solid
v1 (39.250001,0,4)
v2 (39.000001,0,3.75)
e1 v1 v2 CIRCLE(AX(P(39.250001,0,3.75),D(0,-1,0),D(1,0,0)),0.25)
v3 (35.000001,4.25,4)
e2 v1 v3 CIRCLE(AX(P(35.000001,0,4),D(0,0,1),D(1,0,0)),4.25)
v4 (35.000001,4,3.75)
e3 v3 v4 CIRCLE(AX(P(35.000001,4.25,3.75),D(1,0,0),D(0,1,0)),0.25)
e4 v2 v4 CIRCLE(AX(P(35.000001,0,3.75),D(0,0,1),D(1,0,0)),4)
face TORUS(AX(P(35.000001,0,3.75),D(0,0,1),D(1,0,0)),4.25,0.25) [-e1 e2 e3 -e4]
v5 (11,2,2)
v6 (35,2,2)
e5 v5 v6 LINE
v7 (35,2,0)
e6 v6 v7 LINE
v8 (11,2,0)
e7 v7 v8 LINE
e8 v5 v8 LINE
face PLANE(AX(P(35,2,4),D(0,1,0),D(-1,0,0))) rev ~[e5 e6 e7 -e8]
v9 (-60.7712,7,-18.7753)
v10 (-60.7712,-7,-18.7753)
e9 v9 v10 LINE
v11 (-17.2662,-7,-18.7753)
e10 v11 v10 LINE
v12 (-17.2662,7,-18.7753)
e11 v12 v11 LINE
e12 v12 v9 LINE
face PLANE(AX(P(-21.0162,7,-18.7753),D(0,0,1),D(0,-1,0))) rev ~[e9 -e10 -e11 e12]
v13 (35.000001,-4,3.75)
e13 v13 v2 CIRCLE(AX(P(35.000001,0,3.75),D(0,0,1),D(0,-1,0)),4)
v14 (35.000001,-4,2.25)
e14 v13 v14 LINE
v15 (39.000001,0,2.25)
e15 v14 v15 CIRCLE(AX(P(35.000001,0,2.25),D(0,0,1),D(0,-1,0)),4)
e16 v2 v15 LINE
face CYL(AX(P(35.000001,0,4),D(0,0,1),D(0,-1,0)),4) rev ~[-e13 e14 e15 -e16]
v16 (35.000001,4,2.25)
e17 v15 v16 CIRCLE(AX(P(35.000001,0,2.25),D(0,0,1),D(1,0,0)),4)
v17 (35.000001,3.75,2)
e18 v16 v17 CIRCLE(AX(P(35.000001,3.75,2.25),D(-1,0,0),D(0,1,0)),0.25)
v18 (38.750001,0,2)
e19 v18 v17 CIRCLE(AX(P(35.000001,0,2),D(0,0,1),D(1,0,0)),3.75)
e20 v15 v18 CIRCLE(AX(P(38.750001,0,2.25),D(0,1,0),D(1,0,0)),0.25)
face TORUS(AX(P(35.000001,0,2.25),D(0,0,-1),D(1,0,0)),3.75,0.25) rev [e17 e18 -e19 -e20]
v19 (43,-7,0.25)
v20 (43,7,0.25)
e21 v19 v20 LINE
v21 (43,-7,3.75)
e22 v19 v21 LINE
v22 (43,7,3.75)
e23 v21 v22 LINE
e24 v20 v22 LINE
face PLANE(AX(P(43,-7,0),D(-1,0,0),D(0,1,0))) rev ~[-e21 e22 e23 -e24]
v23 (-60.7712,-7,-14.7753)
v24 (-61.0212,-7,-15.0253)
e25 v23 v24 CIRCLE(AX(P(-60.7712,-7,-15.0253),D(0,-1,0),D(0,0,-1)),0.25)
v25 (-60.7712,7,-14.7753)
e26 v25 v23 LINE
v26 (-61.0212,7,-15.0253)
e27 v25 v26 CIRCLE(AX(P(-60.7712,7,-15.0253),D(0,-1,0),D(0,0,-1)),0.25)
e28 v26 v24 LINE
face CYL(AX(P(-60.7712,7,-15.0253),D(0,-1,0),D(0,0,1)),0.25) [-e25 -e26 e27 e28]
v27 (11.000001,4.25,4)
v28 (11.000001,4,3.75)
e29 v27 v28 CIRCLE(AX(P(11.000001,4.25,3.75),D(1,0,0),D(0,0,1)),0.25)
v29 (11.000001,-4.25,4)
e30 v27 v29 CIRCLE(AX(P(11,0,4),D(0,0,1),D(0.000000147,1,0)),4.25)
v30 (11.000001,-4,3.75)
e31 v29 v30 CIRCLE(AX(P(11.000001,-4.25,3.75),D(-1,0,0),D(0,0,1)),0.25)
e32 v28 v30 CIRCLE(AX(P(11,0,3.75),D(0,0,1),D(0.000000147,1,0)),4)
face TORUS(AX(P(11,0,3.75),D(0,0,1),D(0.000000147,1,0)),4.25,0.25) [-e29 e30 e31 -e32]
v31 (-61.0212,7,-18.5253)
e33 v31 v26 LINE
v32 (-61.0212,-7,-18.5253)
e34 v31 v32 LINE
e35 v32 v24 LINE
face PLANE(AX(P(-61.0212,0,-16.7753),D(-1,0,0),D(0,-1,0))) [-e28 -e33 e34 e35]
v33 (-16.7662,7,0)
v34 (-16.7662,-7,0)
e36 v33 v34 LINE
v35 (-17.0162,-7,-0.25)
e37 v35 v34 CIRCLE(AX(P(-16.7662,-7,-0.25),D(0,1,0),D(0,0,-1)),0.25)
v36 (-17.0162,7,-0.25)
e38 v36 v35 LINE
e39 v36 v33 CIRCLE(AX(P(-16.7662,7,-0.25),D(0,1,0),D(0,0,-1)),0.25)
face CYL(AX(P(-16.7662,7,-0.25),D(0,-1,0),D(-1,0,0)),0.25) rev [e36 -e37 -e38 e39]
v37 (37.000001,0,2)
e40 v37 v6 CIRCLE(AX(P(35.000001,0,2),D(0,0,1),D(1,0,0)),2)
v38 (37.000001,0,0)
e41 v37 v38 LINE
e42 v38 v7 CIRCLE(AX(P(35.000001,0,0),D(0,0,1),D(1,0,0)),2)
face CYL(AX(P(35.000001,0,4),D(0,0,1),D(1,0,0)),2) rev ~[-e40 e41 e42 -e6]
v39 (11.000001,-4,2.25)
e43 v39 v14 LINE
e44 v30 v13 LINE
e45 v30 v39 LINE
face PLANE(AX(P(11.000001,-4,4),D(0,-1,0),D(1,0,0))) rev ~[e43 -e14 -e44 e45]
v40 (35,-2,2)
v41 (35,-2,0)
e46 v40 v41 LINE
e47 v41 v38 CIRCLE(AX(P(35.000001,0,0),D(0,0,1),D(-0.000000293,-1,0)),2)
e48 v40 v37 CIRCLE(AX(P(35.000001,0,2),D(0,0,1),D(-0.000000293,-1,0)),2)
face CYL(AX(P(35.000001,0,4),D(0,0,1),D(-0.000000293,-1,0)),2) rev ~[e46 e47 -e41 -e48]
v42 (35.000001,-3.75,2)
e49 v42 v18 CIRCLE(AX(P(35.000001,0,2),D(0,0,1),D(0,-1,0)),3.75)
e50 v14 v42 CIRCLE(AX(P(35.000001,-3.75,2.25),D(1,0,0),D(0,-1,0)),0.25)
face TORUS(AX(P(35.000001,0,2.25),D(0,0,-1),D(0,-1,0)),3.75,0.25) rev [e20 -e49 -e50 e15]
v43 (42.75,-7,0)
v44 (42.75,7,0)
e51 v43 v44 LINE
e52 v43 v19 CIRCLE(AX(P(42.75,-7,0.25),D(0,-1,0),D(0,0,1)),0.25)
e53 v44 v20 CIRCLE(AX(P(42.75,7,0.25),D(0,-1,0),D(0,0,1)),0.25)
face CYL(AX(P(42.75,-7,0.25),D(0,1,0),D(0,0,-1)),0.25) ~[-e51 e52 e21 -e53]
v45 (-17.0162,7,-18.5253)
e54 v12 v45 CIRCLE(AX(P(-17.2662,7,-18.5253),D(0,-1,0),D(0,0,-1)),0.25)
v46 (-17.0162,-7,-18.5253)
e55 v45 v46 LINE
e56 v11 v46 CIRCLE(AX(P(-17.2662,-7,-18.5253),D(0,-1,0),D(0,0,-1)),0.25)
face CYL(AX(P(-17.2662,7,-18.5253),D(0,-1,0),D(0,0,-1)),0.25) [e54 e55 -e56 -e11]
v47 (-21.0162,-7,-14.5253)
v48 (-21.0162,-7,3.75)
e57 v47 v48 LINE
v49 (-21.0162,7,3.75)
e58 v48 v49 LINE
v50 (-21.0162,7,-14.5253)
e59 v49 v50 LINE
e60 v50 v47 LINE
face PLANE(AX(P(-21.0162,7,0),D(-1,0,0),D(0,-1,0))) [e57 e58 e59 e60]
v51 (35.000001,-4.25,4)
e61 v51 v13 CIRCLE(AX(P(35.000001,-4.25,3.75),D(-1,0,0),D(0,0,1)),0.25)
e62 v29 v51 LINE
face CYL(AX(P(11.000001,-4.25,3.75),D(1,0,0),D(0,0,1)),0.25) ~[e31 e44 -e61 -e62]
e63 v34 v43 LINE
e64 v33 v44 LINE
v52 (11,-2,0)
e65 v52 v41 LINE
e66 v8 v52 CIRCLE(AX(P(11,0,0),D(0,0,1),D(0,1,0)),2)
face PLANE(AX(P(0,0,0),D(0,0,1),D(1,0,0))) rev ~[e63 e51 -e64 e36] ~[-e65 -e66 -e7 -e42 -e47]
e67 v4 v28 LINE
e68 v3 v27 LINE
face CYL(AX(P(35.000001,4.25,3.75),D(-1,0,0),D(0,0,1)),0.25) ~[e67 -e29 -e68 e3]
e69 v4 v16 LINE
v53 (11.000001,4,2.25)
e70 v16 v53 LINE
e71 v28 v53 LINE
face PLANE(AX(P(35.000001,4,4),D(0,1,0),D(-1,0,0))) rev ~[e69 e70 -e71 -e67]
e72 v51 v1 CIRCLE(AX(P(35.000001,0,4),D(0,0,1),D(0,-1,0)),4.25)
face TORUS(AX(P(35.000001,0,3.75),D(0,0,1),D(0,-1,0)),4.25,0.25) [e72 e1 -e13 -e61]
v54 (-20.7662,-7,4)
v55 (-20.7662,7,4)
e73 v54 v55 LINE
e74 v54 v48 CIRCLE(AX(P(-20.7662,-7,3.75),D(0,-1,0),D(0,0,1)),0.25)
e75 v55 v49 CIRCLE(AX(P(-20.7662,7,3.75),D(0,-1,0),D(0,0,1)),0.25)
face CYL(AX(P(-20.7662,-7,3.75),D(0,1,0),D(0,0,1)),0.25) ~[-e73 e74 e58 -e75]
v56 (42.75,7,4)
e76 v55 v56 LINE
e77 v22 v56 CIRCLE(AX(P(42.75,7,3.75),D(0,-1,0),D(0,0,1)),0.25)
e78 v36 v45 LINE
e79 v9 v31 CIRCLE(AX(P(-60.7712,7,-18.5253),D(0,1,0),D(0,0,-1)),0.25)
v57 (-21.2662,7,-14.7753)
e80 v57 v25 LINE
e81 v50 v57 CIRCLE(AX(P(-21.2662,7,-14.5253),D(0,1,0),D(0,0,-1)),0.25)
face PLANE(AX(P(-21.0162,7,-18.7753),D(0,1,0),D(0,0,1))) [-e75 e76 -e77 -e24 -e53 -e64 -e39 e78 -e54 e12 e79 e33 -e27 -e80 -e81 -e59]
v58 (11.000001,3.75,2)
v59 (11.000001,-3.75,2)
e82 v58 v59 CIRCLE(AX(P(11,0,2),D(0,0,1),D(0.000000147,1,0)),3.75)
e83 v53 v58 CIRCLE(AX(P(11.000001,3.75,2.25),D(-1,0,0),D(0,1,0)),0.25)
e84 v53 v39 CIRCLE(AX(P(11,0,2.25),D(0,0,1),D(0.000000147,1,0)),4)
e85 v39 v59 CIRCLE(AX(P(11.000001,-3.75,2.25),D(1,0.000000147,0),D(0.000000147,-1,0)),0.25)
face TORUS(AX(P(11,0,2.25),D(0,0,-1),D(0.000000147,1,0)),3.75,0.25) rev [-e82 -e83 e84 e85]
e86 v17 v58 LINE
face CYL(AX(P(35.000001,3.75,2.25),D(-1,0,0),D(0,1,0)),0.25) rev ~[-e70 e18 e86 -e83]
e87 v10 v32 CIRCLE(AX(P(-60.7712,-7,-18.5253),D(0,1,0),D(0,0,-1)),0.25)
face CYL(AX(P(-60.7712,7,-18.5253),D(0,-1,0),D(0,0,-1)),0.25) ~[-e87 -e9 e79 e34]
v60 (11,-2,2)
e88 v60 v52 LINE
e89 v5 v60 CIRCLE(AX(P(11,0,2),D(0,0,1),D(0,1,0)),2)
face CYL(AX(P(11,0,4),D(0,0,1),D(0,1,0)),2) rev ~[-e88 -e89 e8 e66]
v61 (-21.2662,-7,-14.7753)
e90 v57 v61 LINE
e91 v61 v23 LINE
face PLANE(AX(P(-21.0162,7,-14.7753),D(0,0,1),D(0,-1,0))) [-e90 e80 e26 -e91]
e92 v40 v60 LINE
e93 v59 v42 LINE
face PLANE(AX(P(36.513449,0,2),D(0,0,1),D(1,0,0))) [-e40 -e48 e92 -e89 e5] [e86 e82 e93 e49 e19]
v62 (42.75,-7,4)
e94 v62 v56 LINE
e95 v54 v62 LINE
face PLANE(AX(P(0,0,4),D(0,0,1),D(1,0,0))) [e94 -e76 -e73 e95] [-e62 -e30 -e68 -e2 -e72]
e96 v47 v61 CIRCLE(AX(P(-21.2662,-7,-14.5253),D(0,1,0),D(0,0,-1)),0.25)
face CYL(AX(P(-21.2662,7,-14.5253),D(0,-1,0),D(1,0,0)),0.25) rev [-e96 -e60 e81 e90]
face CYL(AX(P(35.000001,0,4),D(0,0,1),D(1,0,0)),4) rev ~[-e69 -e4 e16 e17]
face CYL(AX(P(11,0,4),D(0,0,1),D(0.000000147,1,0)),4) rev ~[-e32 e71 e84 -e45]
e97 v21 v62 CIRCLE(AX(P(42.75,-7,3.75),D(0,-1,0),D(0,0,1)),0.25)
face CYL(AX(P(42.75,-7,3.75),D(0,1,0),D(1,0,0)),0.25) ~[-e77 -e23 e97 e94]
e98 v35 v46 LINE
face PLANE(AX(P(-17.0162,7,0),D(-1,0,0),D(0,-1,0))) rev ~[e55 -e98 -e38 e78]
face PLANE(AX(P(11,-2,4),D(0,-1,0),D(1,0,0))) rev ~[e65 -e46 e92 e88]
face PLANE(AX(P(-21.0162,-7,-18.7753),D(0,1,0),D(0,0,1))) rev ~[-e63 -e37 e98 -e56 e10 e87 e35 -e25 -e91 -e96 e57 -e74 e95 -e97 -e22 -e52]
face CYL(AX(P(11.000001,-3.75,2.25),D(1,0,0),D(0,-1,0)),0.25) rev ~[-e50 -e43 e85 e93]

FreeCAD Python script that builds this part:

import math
import FreeCAD as App
import Part
import Sketcher

V = App.Vector
Q = App.Units.Quantity


def edges_at(feature, points):
    """Names of the edges that pass closest to the given points."""
    edges = feature.Shape.Edges
    near = lambda p: min(range(len(edges)), key=lambda i: edges[i].distToShape(Part.Vertex(*p))[0])
    return sorted({f"Edge{near(p) + 1}" for p in points})

doc = App.newDocument("Part")
params = doc.addObject("Spreadsheet::Sheet", "Params")
for row, (alias, value) in enumerate([
    ("sketch1_width", "86 mm"),
    ("sketch1_height", "14 mm"),
    ("pad1_length", "4 mm"),
    ("sketch2_radius", "2 mm"),
    ("sketch2_width", "24 mm"),
    ("pocket1_length", "4 mm"),
    ("sketch3_radius", "4 mm"),
    ("sketch3_width", "24 mm"),
    ("pocket2_length", "2 mm"),
    ("fillet_radius", "0.25 mm"),
    ("sketch4_height", "14 mm"),
    ("pocket3_length", "4 mm"),
    ("sketch5_width", "4 mm"),
    ("sketch5_height", "14 mm"),
    ("pad2_length", "18.7753 mm"),
    ("sketch6_width", "14 mm"),
    ("sketch6_height", "4 mm"),
    ("pad3_length", "40.005 mm"),
    ("fillet2_radius", "0.25 mm"),
], start=1):
    params.set(f"A{row}", alias)
    params.set(f"B{row}", "=" + value)
    params.setAlias(f"B{row}", alias)

body = doc.addObject("PartDesign::Body", "Body")

sketch1 = body.newObject("Sketcher::SketchObject", "Sketch")
sketch1.AttachmentSupport = (doc.getObject("XY_Plane"), [""])
sketch1.MapMode = "FlatFace"
sketch1.addGeometry([
    Part.LineSegment(V(-43, 7, 0), V(-43, -7, 0)),
    Part.LineSegment(V(-43, -7, 0), V(43, -7, 0)),
    Part.LineSegment(V(43, -7, 0), V(43, 7, 0)),
    Part.LineSegment(V(43, 7, 0), V(-43, 7, 0)),
], False)
sketch1.addConstraint([
    Sketcher.Constraint("Coincident", 0, 2, 1, 1),
    Sketcher.Constraint("Coincident", 1, 2, 2, 1),
    Sketcher.Constraint("Coincident", 2, 2, 3, 1),
    Sketcher.Constraint("Coincident", 3, 2, 0, 1),
    Sketcher.Constraint("Vertical", 0),
    Sketcher.Constraint("Horizontal", 1),
    Sketcher.Constraint("Vertical", 2),
    Sketcher.Constraint("Horizontal", 3),
    Sketcher.Constraint("Symmetric", 0, 2, 2, 2, -1, 1),
    Sketcher.Constraint("DistanceX", 1, 1, 1, 2, Q("86 mm")),
    Sketcher.Constraint("DistanceY", 0, 2, 0, 1, Q("14 mm")),
])
sketch1.setExpression("Constraints[9]", "Params.sketch1_width")
sketch1.setExpression("Constraints[10]", "Params.sketch1_height")
pad1 = body.newObject("PartDesign::Pad", "Pad")
pad1.Profile = sketch1
pad1.setExpression("Length", "Params.pad1_length")

sketch2 = body.newObject("Sketcher::SketchObject", "Sketch001")
sketch2.AttachmentSupport = (doc.getObject("XY_Plane"), [""])
sketch2.MapMode = "FlatFace"
sketch2.AttachmentOffset = App.Placement(V(0, 0, 4), App.Rotation())
sketch2.addGeometry([
    Part.ArcOfCircle(Part.Circle(V(35, 0, 0), V(0, 0, 1), 2), math.radians(-90), math.radians(0)),
    Part.ArcOfCircle(Part.Circle(V(35, 0, 0), V(0, 0, 1), 2), math.radians(0), math.radians(90)),
    Part.LineSegment(V(35, 2, 0), V(11, 2, 0)),
    Part.ArcOfCircle(Part.Circle(V(11, 0, 0), V(0, 0, 1), 2), math.radians(90), math.radians(270)),
    Part.LineSegment(V(11, -2, 0), V(35, -2, 0)),
], False)
sketch2.addConstraint([
    Sketcher.Constraint("Tangent", 0, 2, 1, 1),
    Sketcher.Constraint("Tangent", 1, 2, 2, 1),
    Sketcher.Constraint("Tangent", 2, 2, 3, 1),
    Sketcher.Constraint("Tangent", 3, 2, 4, 1),
    Sketcher.Constraint("Tangent", 4, 2, 0, 1),
    Sketcher.Constraint("Horizontal", 2),
    Sketcher.Constraint("Horizontal", 4),
    Sketcher.Constraint("Equal", 0, 1),
    Sketcher.Constraint("PointOnObject", 0, 3, -1),
    Sketcher.Constraint("PointOnObject", 0, 2, -1),
    Sketcher.Constraint("Radius", 0, Q("2 mm")),
    Sketcher.Constraint("DistanceX", 2, 2, 2, 1, Q("24 mm")),
    Sketcher.Constraint("DistanceX", -1, 1, 0, 3, Q("35.000001 mm")),
])
sketch2.setExpression("Constraints[10]", "Params.sketch2_radius")
sketch2.setExpression("Constraints[11]", "Params.sketch2_width")
pocket1 = body.newObject("PartDesign::Pocket", "Pocket")
pocket1.Profile = sketch2
pocket1.setExpression("Length", "Params.pocket1_length")

sketch3 = body.newObject("Sketcher::SketchObject", "Sketch002")
sketch3.AttachmentSupport = (doc.getObject("XY_Plane"), [""])
sketch3.MapMode = "FlatFace"
sketch3.AttachmentOffset = App.Placement(V(0, 0, 4), App.Rotation())
sketch3.addGeometry([
    Part.ArcOfCircle(Part.Circle(V(35, 0, 0), V(0, 0, 1), 4), math.radians(-90), math.radians(0)),
    Part.ArcOfCircle(Part.Circle(V(35, 0, 0), V(0, 0, 1), 4), math.radians(0), math.radians(90)),
    Part.LineSegment(V(35, 4, 0), V(11, 4, 0)),
    Part.ArcOfCircle(Part.Circle(V(11, 0, 0), V(0, 0, 1), 4), math.radians(90), math.radians(270)),
    Part.LineSegment(V(11, -4, 0), V(35, -4, 0)),
], False)
sketch3.addConstraint([
    Sketcher.Constraint("Tangent", 0, 2, 1, 1),
    Sketcher.Constraint("Tangent", 1, 2, 2, 1),
    Sketcher.Constraint("Tangent", 2, 2, 3, 1),
    Sketcher.Constraint("Tangent", 3, 2, 4, 1),
    Sketcher.Constraint("Tangent", 4, 2, 0, 1),
    Sketcher.Constraint("Horizontal", 2),
    Sketcher.Constraint("Horizontal", 4),
    Sketcher.Constraint("Equal", 0, 1),
    Sketcher.Constraint("PointOnObject", 0, 3, -1),
    Sketcher.Constraint("PointOnObject", 0, 2, -1),
    Sketcher.Constraint("Radius", 0, Q("4 mm")),
    Sketcher.Constraint("DistanceX", 2, 2, 2, 1, Q("24 mm")),
    Sketcher.Constraint("DistanceX", -1, 1, 0, 3, Q("35.000001 mm")),
])
sketch3.setExpression("Constraints[10]", "Params.sketch3_radius")
sketch3.setExpression("Constraints[11]", "Params.sketch3_width")
pocket2 = body.newObject("PartDesign::Pocket", "Pocket001")
pocket2.Profile = sketch3
pocket2.setExpression("Length", "Params.pocket2_length")
doc.recompute()

fillet = body.newObject("PartDesign::Fillet", "Fillet")
fillet.Base = (pocket2, edges_at(pocket2, [
    (23, 4, 2),
    (7, 0, 2),
    (23, -4, 2),
    (39, 0, 3),
    (23, -4, 4),
    (7, 0, 4),
    (23, 4, 4),
    (37.828, -2.828, 4),
]))
fillet.setExpression("Radius", "Params.fillet_radius")

sketch4 = body.newObject("Sketcher::SketchObject", "Sketch003")
sketch4.AttachmentSupport = (doc.getObject("XY_Plane"), [""])
sketch4.MapMode = "FlatFace"
sketch4.AttachmentOffset = App.Placement(V(0, 0, 4), App.Rotation())
sketch4.addGeometry([
    Part.LineSegment(V(-43, 7, 0), V(-43, -7, 0)),
    Part.LineSegment(V(-43, -7, 0), V(-21, -7, 0)),
    Part.LineSegment(V(-21, -7, 0), V(-21, 7, 0)),
    Part.LineSegment(V(-21, 7, 0), V(-43, 7, 0)),
], False)
sketch4.addConstraint([
    Sketcher.Constraint("Coincident", 0, 2, 1, 1),
    Sketcher.Constraint("Coincident", 1, 2, 2, 1),
    Sketcher.Constraint("Coincident", 2, 2, 3, 1),
    Sketcher.Constraint("Coincident", 3, 2, 0, 1),
    Sketcher.Constraint("Vertical", 0),
    Sketcher.Constraint("Horizontal", 1),
    Sketcher.Constraint("Vertical", 2),
    Sketcher.Constraint("Horizontal", 3),
    Sketcher.Constraint("DistanceY", 0, 2, 0, 1, Q("14 mm")),
    Sketcher.Constraint("DistanceX", 0, 2, -1, 1, Q("43 mm")),
    Sketcher.Constraint("DistanceY", 0, 2, -1, 1, Q("7 mm")),
    Sketcher.Constraint("DistanceX", 1, 1, 1, 2, Q("21.9838 mm")),
])
sketch4.setExpression("Constraints[8]", "Params.sketch4_height")
pocket3 = body.newObject("PartDesign::Pocket", "Pocket002")
pocket3.Profile = sketch4
pocket3.setExpression("Length", "Params.pocket3_length")

sketch5 = body.newObject("Sketcher::SketchObject", "Sketch004")
sketch5.AttachmentSupport = (doc.getObject("XY_Plane"), [""])
sketch5.MapMode = "FlatFace"
sketch5.addGeometry([
    Part.LineSegment(V(-21, -7, 0), V(-21, 7, 0)),
    Part.LineSegment(V(-21, 7, 0), V(-17, 7, 0)),
    Part.LineSegment(V(-17, 7, 0), V(-17, -7, 0)),
    Part.LineSegment(V(-17, -7, 0), V(-21, -7, 0)),
], False)
sketch5.addConstraint([
    Sketcher.Constraint("Coincident", 0, 2, 1, 1),
    Sketcher.Constraint("Coincident", 1, 2, 2, 1),
    Sketcher.Constraint("Coincident", 2, 2, 3, 1),
    Sketcher.Constraint("Coincident", 3, 2, 0, 1),
    Sketcher.Constraint("Vertical", 0),
    Sketcher.Constraint("Horizontal", 1),
    Sketcher.Constraint("Vertical", 2),
    Sketcher.Constraint("Horizontal", 3),
    Sketcher.Constraint("DistanceX", 1, 1, 1, 2, Q("4 mm")),
    Sketcher.Constraint("DistanceY", 0, 1, 0, 2, Q("14 mm")),
    Sketcher.Constraint("DistanceY", -1, 1, 0, 2, Q("7 mm")),
    Sketcher.Constraint("DistanceX", 0, 2, -1, 1, Q("21.0162 mm")),
])
sketch5.setExpression("Constraints[8]", "Params.sketch5_width")
sketch5.setExpression("Constraints[9]", "Params.sketch5_height")
pad2 = body.newObject("PartDesign::Pad", "Pad001")
pad2.Profile = sketch5
pad2.setExpression("Length", "Params.pad2_length")
pad2.Reversed = True

sketch6 = body.newObject("Sketcher::SketchObject", "Sketch005")
sketch6.AttachmentSupport = (doc.getObject("YZ_Plane"), [""])
sketch6.MapMode = "FlatFace"
sketch6.AttachmentOffset = App.Placement(V(0, 0, -21.0162), App.Rotation())
sketch6.addGeometry([
    Part.LineSegment(V(7, -14.8, 0), V(7, -18.8, 0)),
    Part.LineSegment(V(7, -18.8, 0), V(-7, -18.8, 0)),
    Part.LineSegment(V(-7, -18.8, 0), V(-7, -14.8, 0)),
    Part.LineSegment(V(-7, -14.8, 0), V(7, -14.8, 0)),
], False)
sketch6.addConstraint([
    Sketcher.Constraint("Coincident", 0, 2, 1, 1),
    Sketcher.Constraint("Coincident", 1, 2, 2, 1),
    Sketcher.Constraint("Coincident", 2, 2, 3, 1),
    Sketcher.Constraint("Coincident", 3, 2, 0, 1),
    Sketcher.Constraint("Vertical", 0),
    Sketcher.Constraint("Horizontal", 1),
    Sketcher.Constraint("Vertical", 2),
    Sketcher.Constraint("Horizontal", 3),
    Sketcher.Constraint("DistanceX", 1, 2, 1, 1, Q("14 mm")),
    Sketcher.Constraint("DistanceY", 0, 2, 0, 1, Q("4 mm")),
    Sketcher.Constraint("DistanceX", -1, 1, 0, 2, Q("7 mm")),
    Sketcher.Constraint("DistanceY", 0, 2, -1, 1, Q("18.7753 mm")),
])
sketch6.setExpression("Constraints[8]", "Params.sketch6_width")
sketch6.setExpression("Constraints[9]", "Params.sketch6_height")
pad3 = body.newObject("PartDesign::Pad", "Pad002")
pad3.Profile = sketch6
pad3.setExpression("Length", "Params.pad3_length")
pad3.Reversed = True
doc.recompute()

fillet2 = body.newObject("PartDesign::Fillet", "Fillet001")
fillet2.Base = (pad3, edges_at(pad3, [
    (-17.016, 0, 0),
    (-17.016, 0, -18.775),
    (43, 0, 0),
    (43, 0, 4),
    (-21.016, 0, -14.775),
    (-21.016, 0, 4),
    (-61.021, 0, -14.775),
    (-61.021, 0, -18.775),
]))
fillet2.setExpression("Radius", "Params.fillet2_radius")

doc.recompute()
